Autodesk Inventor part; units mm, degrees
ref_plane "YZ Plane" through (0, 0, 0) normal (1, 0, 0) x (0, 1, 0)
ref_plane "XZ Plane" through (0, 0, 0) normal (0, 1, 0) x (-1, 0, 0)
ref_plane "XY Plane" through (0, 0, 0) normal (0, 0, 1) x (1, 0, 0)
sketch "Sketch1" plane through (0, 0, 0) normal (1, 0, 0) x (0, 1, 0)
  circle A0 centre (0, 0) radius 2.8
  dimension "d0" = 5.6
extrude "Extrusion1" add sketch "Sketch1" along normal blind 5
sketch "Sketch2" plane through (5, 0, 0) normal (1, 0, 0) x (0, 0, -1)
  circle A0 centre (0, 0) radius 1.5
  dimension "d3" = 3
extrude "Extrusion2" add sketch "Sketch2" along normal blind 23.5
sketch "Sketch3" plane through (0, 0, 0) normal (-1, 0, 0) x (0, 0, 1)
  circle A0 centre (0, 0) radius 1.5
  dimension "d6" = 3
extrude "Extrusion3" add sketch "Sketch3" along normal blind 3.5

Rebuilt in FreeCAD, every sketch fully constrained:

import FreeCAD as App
import Part
import Sketcher
from FreeCAD import Vector

doc = App.newDocument("Part")
body = doc.addObject("PartDesign::Body", "Body")

sketch1 = doc.addObject("Sketcher::SketchObject", "Sketch")
body.addObject(sketch1)
sketch1.AttachmentSupport = (doc.YZ_Plane, [""])
sketch1.MapMode = "FlatFace"
sketch1.addGeometry(Part.Circle(Vector(0, 0, 0), Vector(0, 0, 1), 2.8), False)
sketch1.addConstraint([
    Sketcher.Constraint("Coincident", 0, 3, -1, 1),
    Sketcher.Constraint("Diameter", 0, 5.6),
])
pad1 = doc.addObject("PartDesign::Pad", "Pad")
body.addObject(pad1)
pad1.Profile = sketch1
pad1.Length = 5

sketch2 = doc.addObject("Sketcher::SketchObject", "Sketch001")
body.addObject(sketch2)
sketch2.AttachmentSupport = (doc.YZ_Plane, [""])
sketch2.MapMode = "FlatFace"
sketch2.AttachmentOffset = App.Placement(Vector(0, 0, 5), App.Rotation())
sketch2.addGeometry(Part.Circle(Vector(0, 0, 0), Vector(0, 0, 1), 1.5), False)
sketch2.addConstraint([
    Sketcher.Constraint("Coincident", 0, 3, -1, 1),
    Sketcher.Constraint("Diameter", 0, 3.0),
])
pad2 = doc.addObject("PartDesign::Pad", "Pad001")
body.addObject(pad2)
pad2.Profile = sketch2
pad2.Length = 23.5

sketch3 = doc.addObject("Sketcher::SketchObject", "Sketch002")
body.addObject(sketch3)
sketch3.AttachmentSupport = (doc.YZ_Plane, [""])
sketch3.MapMode = "FlatFace"
sketch3.addGeometry(Part.Circle(Vector(0, 0, 0), Vector(0, 0, 1), 1.5), False)
sketch3.addConstraint([
    Sketcher.Constraint("Coincident", 0, 3, -1, 1),
    Sketcher.Constraint("Diameter", 0, 3.0),
])
pad3 = doc.addObject("PartDesign::Pad", "Pad002")
body.addObject(pad3)
pad3.Profile = sketch3
pad3.Length = 3.5
pad3.Reversed = True

doc.recompute()
